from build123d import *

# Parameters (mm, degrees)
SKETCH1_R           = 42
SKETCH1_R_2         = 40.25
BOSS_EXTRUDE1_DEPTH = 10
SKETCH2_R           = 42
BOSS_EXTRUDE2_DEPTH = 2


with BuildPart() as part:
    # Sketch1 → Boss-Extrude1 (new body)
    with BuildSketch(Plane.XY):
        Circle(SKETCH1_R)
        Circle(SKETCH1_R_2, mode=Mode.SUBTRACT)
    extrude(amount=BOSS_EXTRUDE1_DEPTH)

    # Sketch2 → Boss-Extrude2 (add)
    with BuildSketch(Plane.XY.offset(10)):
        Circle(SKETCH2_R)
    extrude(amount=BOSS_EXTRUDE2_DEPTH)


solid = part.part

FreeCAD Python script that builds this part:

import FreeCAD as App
import Part
import Sketcher

doc = App.newDocument("Part")
body = doc.addObject("PartDesign::Body", "Body")

# Sketch on XY plane
sketch1 = body.newObject("Sketcher::SketchObject", "Sketch")
sketch1.AttachmentSupport = (doc.getObject("XY_Plane"), [""])
sketch1.MapMode = "FlatFace"
sketch1.addGeometry(Part.Circle(App.Vector(0, 0, 0), App.Vector(0, 0, 1), 42), False)
sketch1.addGeometry(Part.Circle(App.Vector(0, 0, 0), App.Vector(0, 0, 1), 40), False)
sketch1.addConstraint(Sketcher.Constraint("Coincident", 0, 3, -1, 1))
sketch1.addConstraint(Sketcher.Constraint("Coincident", 1, 3, -1, 1))
sketch1.addConstraint(Sketcher.Constraint("Diameter", 0, 84.0))
sketch1.addConstraint(Sketcher.Constraint("Diameter", 1, 80.5))
pad1 = body.newObject("PartDesign::Pad", "Pad")
pad1.Profile = sketch1
pad1.Length = 10

# Sketch on XY plane
sketch2 = body.newObject("Sketcher::SketchObject", "Sketch001")
sketch2.AttachmentSupport = (doc.getObject("XY_Plane"), [""])
sketch2.MapMode = "FlatFace"
sketch2.AttachmentOffset = App.Placement(App.Vector(0, 0, 10), App.Rotation())
sketch2.addGeometry(Part.Circle(App.Vector(0, 0, 0), App.Vector(0, 0, 1), 42), False)
sketch2.addConstraint(Sketcher.Constraint("Coincident", 0, 3, -1, 1))
sketch2.addConstraint(Sketcher.Constraint("Diameter", 0, 84.0))
pad2 = body.newObject("PartDesign::Pad", "Pad001")
pad2.Profile = sketch2
pad2.Length = 2

doc.recompute()
